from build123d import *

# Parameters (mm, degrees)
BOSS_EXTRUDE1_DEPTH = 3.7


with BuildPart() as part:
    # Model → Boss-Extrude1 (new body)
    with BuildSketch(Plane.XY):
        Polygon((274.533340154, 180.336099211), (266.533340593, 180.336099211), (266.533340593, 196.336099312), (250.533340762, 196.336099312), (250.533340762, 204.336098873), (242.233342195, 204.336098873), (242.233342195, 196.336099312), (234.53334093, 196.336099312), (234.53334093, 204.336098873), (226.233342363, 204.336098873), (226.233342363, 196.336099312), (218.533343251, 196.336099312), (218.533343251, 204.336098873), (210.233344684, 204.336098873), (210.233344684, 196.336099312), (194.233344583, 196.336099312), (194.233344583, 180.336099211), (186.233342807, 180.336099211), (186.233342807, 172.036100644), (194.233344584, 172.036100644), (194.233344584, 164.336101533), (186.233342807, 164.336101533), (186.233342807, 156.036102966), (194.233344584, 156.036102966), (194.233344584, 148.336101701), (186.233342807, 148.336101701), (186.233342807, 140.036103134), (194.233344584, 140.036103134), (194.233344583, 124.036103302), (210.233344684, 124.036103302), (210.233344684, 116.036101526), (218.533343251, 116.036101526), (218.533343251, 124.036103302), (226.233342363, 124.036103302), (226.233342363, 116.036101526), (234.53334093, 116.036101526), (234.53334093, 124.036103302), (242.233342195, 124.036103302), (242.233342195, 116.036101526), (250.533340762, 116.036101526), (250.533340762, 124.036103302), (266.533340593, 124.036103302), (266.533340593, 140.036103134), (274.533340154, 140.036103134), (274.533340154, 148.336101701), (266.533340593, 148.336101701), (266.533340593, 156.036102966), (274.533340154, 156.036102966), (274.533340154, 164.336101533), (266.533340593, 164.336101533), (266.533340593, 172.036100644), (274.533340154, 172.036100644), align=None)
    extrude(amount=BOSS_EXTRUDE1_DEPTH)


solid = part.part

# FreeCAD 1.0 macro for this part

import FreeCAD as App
import Part
import Sketcher
from FreeCAD import Vector


def add_polygon(sketch, points):
    """Adds a closed chain of lines whose ends are joined by coincident constraints."""
    first, n = sketch.GeometryCount, len(points)
    for a, b in zip(points, points[1:] + points[:1]):
        sketch.addGeometry(Part.LineSegment(App.Vector(*a, 0), App.Vector(*b, 0)), False)
    for i in range(n):
        sketch.addConstraint(Sketcher.Constraint("Coincident", first + i, 2, first + (i + 1) % n, 1))

doc = App.newDocument("Part")
body = doc.addObject("PartDesign::Body", "Body")

# Sketch on XY plane
sketch1 = body.newObject("Sketcher::SketchObject", "Sketch")
sketch1.AttachmentSupport = (doc.getObject("XY_Plane"), [""])
sketch1.MapMode = "FlatFace"
add_polygon(sketch1, [(275, 180), (267, 180), (267, 196), (251, 196), (251, 204), (242, 204), (242, 196), (235, 196), (235, 204), (226, 204), (226, 196), (219, 196), (219, 204), (210, 204), (210, 196), (194, 196), (194, 180), (186, 180), (186, 172), (194, 172), (194, 164), (186, 164), (186, 156), (194, 156), (194, 148), (186, 148), (186, 140), (194, 140), (194, 124), (210, 124), (210, 116), (219, 116), (219, 124), (226, 124), (226, 116), (235, 116), (235, 124), (242, 124), (242, 116), (251, 116), (251, 124), (267, 124), (267, 140), (275, 140), (275, 148), (267, 148), (267, 156), (275, 156), (275, 164), (267, 164), (267, 172), (275, 172)])  # lines 0-51
sketch1.addConstraint(Sketcher.Constraint("Horizontal", 0))
sketch1.addConstraint(Sketcher.Constraint("Vertical", 1))
sketch1.addConstraint(Sketcher.Constraint("Horizontal", 2))
sketch1.addConstraint(Sketcher.Constraint("Vertical", 3))
sketch1.addConstraint(Sketcher.Constraint("Horizontal", 4))
sketch1.addConstraint(Sketcher.Constraint("Vertical", 5))
sketch1.addConstraint(Sketcher.Constraint("Horizontal", 6))
sketch1.addConstraint(Sketcher.Constraint("Vertical", 7))
sketch1.addConstraint(Sketcher.Constraint("Horizontal", 8))
sketch1.addConstraint(Sketcher.Constraint("Vertical", 9))
sketch1.addConstraint(Sketcher.Constraint("Horizontal", 10))
sketch1.addConstraint(Sketcher.Constraint("Vertical", 11))
sketch1.addConstraint(Sketcher.Constraint("Horizontal", 12))
sketch1.addConstraint(Sketcher.Constraint("Vertical", 13))
sketch1.addConstraint(Sketcher.Constraint("Horizontal", 14))
sketch1.addConstraint(Sketcher.Constraint("Vertical", 15))
sketch1.addConstraint(Sketcher.Constraint("Horizontal", 16))
sketch1.addConstraint(Sketcher.Constraint("Vertical", 17))
sketch1.addConstraint(Sketcher.Constraint("Horizontal", 18))
sketch1.addConstraint(Sketcher.Constraint("Vertical", 19))
sketch1.addConstraint(Sketcher.Constraint("Horizontal", 20))
sketch1.addConstraint(Sketcher.Constraint("Vertical", 21))
sketch1.addConstraint(Sketcher.Constraint("Horizontal", 22))
sketch1.addConstraint(Sketcher.Constraint("Vertical", 23))
sketch1.addConstraint(Sketcher.Constraint("Horizontal", 24))
sketch1.addConstraint(Sketcher.Constraint("Vertical", 25))
sketch1.addConstraint(Sketcher.Constraint("Horizontal", 26))
sketch1.addConstraint(Sketcher.Constraint("Vertical", 27))
sketch1.addConstraint(Sketcher.Constraint("Horizontal", 28))
sketch1.addConstraint(Sketcher.Constraint("Vertical", 29))
sketch1.addConstraint(Sketcher.Constraint("Horizontal", 30))
sketch1.addConstraint(Sketcher.Constraint("Vertical", 31))
sketch1.addConstraint(Sketcher.Constraint("Horizontal", 32))
sketch1.addConstraint(Sketcher.Constraint("Vertical", 33))
sketch1.addConstraint(Sketcher.Constraint("Horizontal", 34))
sketch1.addConstraint(Sketcher.Constraint("Vertical", 35))
sketch1.addConstraint(Sketcher.Constraint("Horizontal", 36))
sketch1.addConstraint(Sketcher.Constraint("Vertical", 37))
sketch1.addConstraint(Sketcher.Constraint("Horizontal", 38))
sketch1.addConstraint(Sketcher.Constraint("Vertical", 39))
sketch1.addConstraint(Sketcher.Constraint("Horizontal", 40))
sketch1.addConstraint(Sketcher.Constraint("Vertical", 41))
sketch1.addConstraint(Sketcher.Constraint("Horizontal", 42))
sketch1.addConstraint(Sketcher.Constraint("Vertical", 43))
sketch1.addConstraint(Sketcher.Constraint("Horizontal", 44))
sketch1.addConstraint(Sketcher.Constraint("Vertical", 45))
sketch1.addConstraint(Sketcher.Constraint("Horizontal", 46))
sketch1.addConstraint(Sketcher.Constraint("Vertical", 47))
sketch1.addConstraint(Sketcher.Constraint("Horizontal", 48))
sketch1.addConstraint(Sketcher.Constraint("Vertical", 49))
sketch1.addConstraint(Sketcher.Constraint("Horizontal", 50))
sketch1.addConstraint(Sketcher.Constraint("Vertical", 51))
sketch1.addConstraint(Sketcher.Constraint("Horizontal", 2, 2, 5, 2))
sketch1.addConstraint(Sketcher.Constraint("Horizontal", 4, 2, 7, 2))
sketch1.addConstraint(Sketcher.Constraint("Horizontal", 6, 2, 9, 2))
sketch1.addConstraint(Sketcher.Constraint("Horizontal", 8, 2, 11, 2))
sketch1.addConstraint(Sketcher.Constraint("Horizontal", 10, 2, 13, 2))
sketch1.addConstraint(Sketcher.Constraint("Horizontal", 0, 2, 15, 2))
sketch1.addConstraint(Sketcher.Constraint("Horizontal", 28, 2, 31, 2))
sketch1.addConstraint(Sketcher.Constraint("Horizontal", 30, 2, 33, 2))
sketch1.addConstraint(Sketcher.Constraint("Horizontal", 32, 2, 35, 2))
sketch1.addConstraint(Sketcher.Constraint("Horizontal", 34, 2, 37, 2))
sketch1.addConstraint(Sketcher.Constraint("Horizontal", 36, 2, 39, 2))
sketch1.addConstraint(Sketcher.Constraint("Horizontal", 26, 2, 41, 2))
sketch1.addConstraint(Sketcher.Constraint("Horizontal", 24, 2, 43, 2))
sketch1.addConstraint(Sketcher.Constraint("Horizontal", 22, 2, 45, 2))
sketch1.addConstraint(Sketcher.Constraint("Horizontal", 20, 2, 47, 2))
sketch1.addConstraint(Sketcher.Constraint("Horizontal", 18, 2, 49, 2))
sketch1.addConstraint(Sketcher.Constraint("Vertical", 15, 2, 18, 2))
sketch1.addConstraint(Sketcher.Constraint("Vertical", 17, 2, 20, 2))
sketch1.addConstraint(Sketcher.Constraint("Vertical", 19, 2, 22, 2))
sketch1.addConstraint(Sketcher.Constraint("Vertical", 21, 2, 24, 2))
sketch1.addConstraint(Sketcher.Constraint("Vertical", 23, 2, 26, 2))
sketch1.addConstraint(Sketcher.Constraint("Vertical", 13, 2, 28, 2))
sketch1.addConstraint(Sketcher.Constraint("Vertical", 11, 2, 30, 2))
sketch1.addConstraint(Sketcher.Constraint("Vertical", 9, 2, 32, 2))
sketch1.addConstraint(Sketcher.Constraint("Vertical", 7, 2, 34, 2))
sketch1.addConstraint(Sketcher.Constraint("Vertical", 5, 2, 36, 2))
sketch1.addConstraint(Sketcher.Constraint("Vertical", 3, 2, 38, 2))
sketch1.addConstraint(Sketcher.Constraint("Vertical", 1, 2, 40, 2))
sketch1.addConstraint(Sketcher.Constraint("Vertical", 41, 2, 44, 2))
sketch1.addConstraint(Sketcher.Constraint("Vertical", 43, 2, 46, 2))
sketch1.addConstraint(Sketcher.Constraint("Vertical", 45, 2, 48, 2))
sketch1.addConstraint(Sketcher.Constraint("Vertical", 47, 2, 50, 2))
sketch1.addConstraint(Sketcher.Constraint("Equal", 4, 8))
sketch1.addConstraint(Sketcher.Constraint("Equal", 8, 12))
sketch1.addConstraint(Sketcher.Constraint("Equal", 2, 14))
sketch1.addConstraint(Sketcher.Constraint("Equal", 40, 1))
sketch1.addConstraint(Sketcher.Constraint("Equal", 50, 3))
sketch1.addConstraint(Sketcher.Constraint("Equal", 38, 17))
sketch1.addConstraint(Sketcher.Constraint("Equal", 32, 19))
sketch1.addConstraint(Sketcher.Constraint("Equal", 17, 21))
sketch1.addConstraint(Sketcher.Constraint("Equal", 36, 23))
sketch1.addConstraint(Sketcher.Constraint("Equal", 21, 25))
sketch1.addConstraint(Sketcher.Constraint("Equal", 15, 27))
sketch1.addConstraint(Sketcher.Constraint("Equal", 26, 29))
sketch1.addConstraint(Sketcher.Constraint("DistanceX", 0, 2, 0, 1, 8.0))
sketch1.addConstraint(Sketcher.Constraint("DistanceX", 2, 2, 2, 1, 16.0))
sketch1.addConstraint(Sketcher.Constraint("DistanceX", 16, 2, 16, 1, 8.000002))
sketch1.addConstraint(Sketcher.Constraint("DistanceX", 4, 2, 4, 1, 8.299999))
sketch1.addConstraint(Sketcher.Constraint("DistanceX", 6, 2, 6, 1, 7.700001))
sketch1.addConstraint(Sketcher.Constraint("DistanceX", 10, 2, 10, 1, 7.699999))
sketch1.addConstraint(Sketcher.Constraint("DistanceY", -1, 1, 0, 2, 180.336099))
sketch1.addConstraint(Sketcher.Constraint("DistanceX", -1, 1, 0, 2, 266.533341))
pad1 = body.newObject("PartDesign::Pad", "Pad")
pad1.Profile = sketch1
pad1.Length = 3.7

doc.recompute()
